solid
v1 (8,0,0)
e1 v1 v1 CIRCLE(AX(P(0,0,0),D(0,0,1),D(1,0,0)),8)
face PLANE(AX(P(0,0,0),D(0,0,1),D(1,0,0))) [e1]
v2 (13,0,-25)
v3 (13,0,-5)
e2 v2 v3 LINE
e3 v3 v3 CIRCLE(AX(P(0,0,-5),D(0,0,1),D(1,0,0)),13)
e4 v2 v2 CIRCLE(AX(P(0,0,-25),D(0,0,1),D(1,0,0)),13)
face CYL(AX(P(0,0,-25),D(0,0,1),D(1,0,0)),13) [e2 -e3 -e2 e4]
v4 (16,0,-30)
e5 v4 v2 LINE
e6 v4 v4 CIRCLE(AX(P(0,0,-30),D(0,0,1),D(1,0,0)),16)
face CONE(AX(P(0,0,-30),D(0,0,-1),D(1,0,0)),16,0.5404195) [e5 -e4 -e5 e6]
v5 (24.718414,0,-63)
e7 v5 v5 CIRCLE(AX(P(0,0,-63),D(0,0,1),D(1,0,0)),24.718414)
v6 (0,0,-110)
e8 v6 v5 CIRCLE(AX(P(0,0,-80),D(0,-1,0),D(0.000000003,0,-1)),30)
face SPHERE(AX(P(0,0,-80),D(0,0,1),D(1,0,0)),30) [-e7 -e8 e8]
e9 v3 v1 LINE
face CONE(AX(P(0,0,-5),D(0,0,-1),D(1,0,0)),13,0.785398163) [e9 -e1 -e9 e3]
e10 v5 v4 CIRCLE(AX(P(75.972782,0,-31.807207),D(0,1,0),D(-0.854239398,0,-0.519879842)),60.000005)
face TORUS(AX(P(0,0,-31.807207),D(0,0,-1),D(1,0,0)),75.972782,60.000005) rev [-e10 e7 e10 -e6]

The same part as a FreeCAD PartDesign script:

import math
import FreeCAD as App
import Part
import Sketcher

V = App.Vector
Q = App.Units.Quantity

doc = App.newDocument("Part")
params = doc.addObject("Spreadsheet::Sheet", "Params")
for row, (alias, value) in enumerate([
    ("sketch1_radius", "30 mm"),
    ("sketch1_width", "8 mm"),
    ("sketch1_height", "110 mm"),
    ("sketch1_height2", "20 mm"),
    ("revolution_angle", "360 deg"),
], start=1):
    params.set(f"A{row}", alias)
    params.set(f"B{row}", "=" + value)
    params.setAlias(f"B{row}", alias)

body = doc.addObject("PartDesign::Body", "Body")

# Sketch on XZ plane
sketch1 = doc.addObject("Sketcher::SketchObject", "Sketch")
body.addObject(sketch1)
sketch1.AttachmentSupport = (doc.XZ_Plane, [""])
sketch1.MapMode = "FlatFace"
sketch1.addGeometry([
    Part.LineSegment(V(8, 0, 0), V(0, 0, 0)),  # 0
    Part.LineSegment(V(0, 0, 0), V(0, -110, 0)),  # 1
    Part.ArcOfCircle(Part.Circle(V(0, -80, 0), V(0, 0, 1), 30), math.radians(-90), math.radians(34.518108)),  # 2
    Part.ArcOfCircle(Part.Circle(V(75.972782, -31.807207, 0), V(0, 0, 1), 60.000005), math.radians(178.273984), math.radians(211.324192)),  # 3
    Part.LineSegment(V(16, -30, 0), V(13, -25, 0)),  # 4
    Part.LineSegment(V(13, -25, 0), V(13, -5, 0)),  # 5
    Part.LineSegment(V(13, -5, 0), V(8, 0, 0)),  # 6
], False)
sketch1.addConstraint([
    Sketcher.Constraint("Coincident", 0, 2, 1, 1),
    Sketcher.Constraint("Coincident", 1, 2, 2, 1),
    Sketcher.Constraint("Coincident", 2, 2, 3, 2),
    Sketcher.Constraint("Coincident", 3, 1, 4, 1),
    Sketcher.Constraint("Coincident", 4, 2, 5, 1),
    Sketcher.Constraint("Coincident", 5, 2, 6, 1),
    Sketcher.Constraint("Coincident", 6, 2, 0, 1),
    Sketcher.Constraint("Horizontal", 0),
    Sketcher.Constraint("Vertical", 1),
    Sketcher.Constraint("Vertical", 5),
    Sketcher.Constraint("Coincident", 0, 2, -1, 1),
    Sketcher.Constraint("PointOnObject", 2, 3, -2),
    Sketcher.Constraint("Radius", 2, Q("30 mm")),
    Sketcher.Constraint("DistanceX", 0, 2, 0, 1, Q("8 mm")),
    Sketcher.Constraint("DistanceY", 1, 2, 1, 1, Q("110 mm")),
    Sketcher.Constraint("DistanceY", 5, 1, 5, 2, Q("20 mm")),
    Sketcher.Constraint("Angle", 6, Q("135 deg")),
    Sketcher.Constraint("DistanceY", 2, 2, -1, 1, Q("63 mm")),
    Sketcher.Constraint("DistanceX", -1, 1, 3, 1, Q("16 mm")),
    Sketcher.Constraint("DistanceY", 3, 1, -1, 1, Q("30 mm")),
    Sketcher.Constraint("DistanceX", -1, 1, 4, 2, Q("13 mm")),
    Sketcher.Constraint("Radius", 3, Q("60.000005 mm")),
])
sketch1.setExpression("Constraints[12]", "Params.sketch1_radius")
sketch1.setExpression("Constraints[13]", "Params.sketch1_width")
sketch1.setExpression("Constraints[14]", "Params.sketch1_height")
sketch1.setExpression("Constraints[15]", "Params.sketch1_height2")
revolution = doc.addObject("PartDesign::Revolution", "Revolution")
body.addObject(revolution)
revolution.Profile = sketch1
revolution.ReferenceAxis = (sketch1, ["V_Axis"])
revolution.setExpression("Angle", "Params.revolution_angle")

doc.recompute()
